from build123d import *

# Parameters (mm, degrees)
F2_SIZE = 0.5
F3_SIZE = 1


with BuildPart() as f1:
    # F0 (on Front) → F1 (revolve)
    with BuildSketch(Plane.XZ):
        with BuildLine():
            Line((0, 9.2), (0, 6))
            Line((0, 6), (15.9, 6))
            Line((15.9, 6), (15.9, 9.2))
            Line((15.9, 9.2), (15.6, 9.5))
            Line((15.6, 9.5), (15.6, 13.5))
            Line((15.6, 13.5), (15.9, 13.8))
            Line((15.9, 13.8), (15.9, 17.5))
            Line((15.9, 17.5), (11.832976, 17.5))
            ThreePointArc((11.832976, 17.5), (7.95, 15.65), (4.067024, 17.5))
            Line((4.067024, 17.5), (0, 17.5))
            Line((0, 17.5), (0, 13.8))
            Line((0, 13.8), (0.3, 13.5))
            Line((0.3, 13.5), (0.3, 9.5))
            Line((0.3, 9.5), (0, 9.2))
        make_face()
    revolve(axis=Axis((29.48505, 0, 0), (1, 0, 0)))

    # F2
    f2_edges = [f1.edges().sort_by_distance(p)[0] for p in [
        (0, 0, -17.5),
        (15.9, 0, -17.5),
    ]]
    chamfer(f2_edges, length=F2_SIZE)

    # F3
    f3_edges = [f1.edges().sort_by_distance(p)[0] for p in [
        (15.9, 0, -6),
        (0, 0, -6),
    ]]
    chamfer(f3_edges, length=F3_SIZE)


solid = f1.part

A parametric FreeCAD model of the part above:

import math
import FreeCAD as App
import Part
import Sketcher

V = App.Vector


def edges_at(feature, points):
    """Names of the edges that pass closest to the given points."""
    edges = feature.Shape.Edges
    near = lambda p: min(range(len(edges)), key=lambda i: edges[i].distToShape(Part.Vertex(*p))[0])
    return sorted({f"Edge{near(p) + 1}" for p in points})

doc = App.newDocument("Part")
params = doc.addObject("Spreadsheet::Sheet", "Params")
for row, (alias, value) in enumerate([
    ("sketch1_radius", "5.000001 mm"),
    ("sketch1_height", "4 mm"),
    ("sketch1_width", "15.9 mm"),
    ("sketch1_height2", "3.2 mm"),
    ("sketch1_height3", "3.7 mm"),
    ("revolution_angle", "360 deg"),
    ("chamfer_size", "0.5 mm"),
    ("chamfer2_size", "1 mm"),
], start=1):
    params.set(f"A{row}", alias)
    params.set(f"B{row}", "=" + value)
    params.setAlias(f"B{row}", alias)

body = doc.addObject("PartDesign::Body", "Body")

sketch1 = body.newObject("Sketcher::SketchObject", "Sketch")
sketch1.AttachmentSupport = (doc.getObject("XZ_Plane"), [""])
sketch1.MapMode = "FlatFace"
sketch1.addGeometry(Part.LineSegment(V(0, 9.2, 0), V(0, 6, 0)), False)
sketch1.addGeometry(Part.LineSegment(V(0, 6, 0), V(15.9, 6, 0)), False)
sketch1.addGeometry(Part.LineSegment(V(15.9, 6, 0), V(15.9, 9.2, 0)), False)
sketch1.addGeometry(Part.LineSegment(V(15.9, 9.2, 0), V(15.6, 9.5, 0)), False)
sketch1.addGeometry(Part.LineSegment(V(15.6, 9.5, 0), V(15.6, 13.5, 0)), False)
sketch1.addGeometry(Part.LineSegment(V(15.6, 13.5, 0), V(15.9, 13.8, 0)), False)
sketch1.addGeometry(Part.LineSegment(V(15.9, 13.8, 0), V(15.9, 17.5, 0)), False)
sketch1.addGeometry(Part.LineSegment(V(15.9, 17.5, 0), V(11.83, 17.5, 0)), False)
sketch1.addGeometry(Part.ArcOfCircle(Part.Circle(V(7.95, 20.65, 0), V(0, 0, 1), 5), math.radians(-141), math.radians(-39)), False)
sketch1.addGeometry(Part.LineSegment(V(4.07, 17.5, 0), V(0, 17.5, 0)), False)
sketch1.addGeometry(Part.LineSegment(V(0, 17.5, 0), V(0, 13.8, 0)), False)
sketch1.addGeometry(Part.LineSegment(V(0, 13.8, 0), V(0.3, 13.5, 0)), False)
sketch1.addGeometry(Part.LineSegment(V(0.3, 13.5, 0), V(0.3, 9.5, 0)), False)
sketch1.addGeometry(Part.LineSegment(V(0.3, 9.5, 0), V(0, 9.2, 0)), False)
sketch1.addConstraint(Sketcher.Constraint("Coincident", 0, 2, 1, 1))
sketch1.addConstraint(Sketcher.Constraint("Coincident", 1, 2, 2, 1))
sketch1.addConstraint(Sketcher.Constraint("Coincident", 2, 2, 3, 1))
sketch1.addConstraint(Sketcher.Constraint("Coincident", 3, 2, 4, 1))
sketch1.addConstraint(Sketcher.Constraint("Coincident", 4, 2, 5, 1))
sketch1.addConstraint(Sketcher.Constraint("Coincident", 5, 2, 6, 1))
sketch1.addConstraint(Sketcher.Constraint("Coincident", 6, 2, 7, 1))
sketch1.addConstraint(Sketcher.Constraint("Coincident", 7, 2, 8, 2))
sketch1.addConstraint(Sketcher.Constraint("Coincident", 8, 1, 9, 1))
sketch1.addConstraint(Sketcher.Constraint("Coincident", 9, 2, 10, 1))
sketch1.addConstraint(Sketcher.Constraint("Coincident", 10, 2, 11, 1))
sketch1.addConstraint(Sketcher.Constraint("Coincident", 11, 2, 12, 1))
sketch1.addConstraint(Sketcher.Constraint("Coincident", 12, 2, 13, 1))
sketch1.addConstraint(Sketcher.Constraint("Coincident", 13, 2, 0, 1))
sketch1.addConstraint(Sketcher.Constraint("Vertical", 0))
sketch1.addConstraint(Sketcher.Constraint("Horizontal", 1))
sketch1.addConstraint(Sketcher.Constraint("Vertical", 2))
sketch1.addConstraint(Sketcher.Constraint("Vertical", 4))
sketch1.addConstraint(Sketcher.Constraint("Vertical", 6))
sketch1.addConstraint(Sketcher.Constraint("Horizontal", 7))
sketch1.addConstraint(Sketcher.Constraint("Horizontal", 9))
sketch1.addConstraint(Sketcher.Constraint("Vertical", 10))
sketch1.addConstraint(Sketcher.Constraint("Vertical", 12))
sketch1.addConstraint(Sketcher.Constraint("PointOnObject", 0, 2, -2))
sketch1.addConstraint(Sketcher.Constraint("PointOnObject", 9, 2, -2))
sketch1.addConstraint(Sketcher.Constraint("Perpendicular", 3, 5))
sketch1.addConstraint(Sketcher.Constraint("Perpendicular", 5, 11))
sketch1.addConstraint(Sketcher.Constraint("Perpendicular", 11, 13))
sketch1.addConstraint(Sketcher.Constraint("Horizontal", 7, 2, 8, 1))
sketch1.addConstraint(Sketcher.Constraint("Horizontal", 5, 2, 10, 2))
sketch1.addConstraint(Sketcher.Constraint("Horizontal", 4, 2, 11, 2))
sketch1.addConstraint(Sketcher.Constraint("Horizontal", 3, 2, 12, 2))
sketch1.addConstraint(Sketcher.Constraint("Horizontal", 2, 2, 13, 2))
sketch1.addConstraint(Sketcher.Constraint("Vertical", 2, 2, 5, 2))
sketch1.addConstraint(Sketcher.Constraint("Equal", 7, 9))
sketch1.addConstraint(Sketcher.Constraint("Radius", 8, 5.000001))
sketch1.addConstraint(Sketcher.Constraint("DistanceY", 4, 1, 4, 2, 4.0))
sketch1.addConstraint(Sketcher.Constraint("DistanceX", 1, 1, 1, 2, 15.9))
sketch1.addConstraint(Sketcher.Constraint("DistanceY", 0, 2, 0, 1, 3.2))
sketch1.addConstraint(Sketcher.Constraint("DistanceY", 6, 1, 6, 2, 3.7))
sketch1.addConstraint(Sketcher.Constraint("DistanceY", -1, 1, 0, 2, 6.0))
sketch1.addConstraint(Sketcher.Constraint("DistanceY", 4, 2, 6, 2, 4.0))
sketch1.addConstraint(Sketcher.Constraint("DistanceY", -1, 1, 8, 3, 20.650001))
sketch1.setExpression("Constraints[35]", "Params.sketch1_radius")
sketch1.setExpression("Constraints[36]", "Params.sketch1_height")
sketch1.setExpression("Constraints[37]", "Params.sketch1_width")
sketch1.setExpression("Constraints[38]", "Params.sketch1_height2")
sketch1.setExpression("Constraints[39]", "Params.sketch1_height3")
revolution = body.newObject("PartDesign::Revolution", "Revolution")
revolution.Profile = sketch1
revolution.ReferenceAxis = (sketch1, ["H_Axis"])
revolution.setExpression("Angle", "Params.revolution_angle")
doc.recompute()

chamfer = body.newObject("PartDesign::Chamfer", "Chamfer")
chamfer.Base = (revolution, edges_at(revolution, [(0, 0, -17.5), (15.9, 0, -17.5)]))
chamfer.setExpression("Size", "Params.chamfer_size")
doc.recompute()

chamfer2 = body.newObject("PartDesign::Chamfer", "Chamfer001")
chamfer2.Base = (chamfer, edges_at(chamfer, [(15.9, 0, -6), (0, 0, -6)]))
chamfer2.setExpression("Size", "Params.chamfer2_size")

doc.recompute()
